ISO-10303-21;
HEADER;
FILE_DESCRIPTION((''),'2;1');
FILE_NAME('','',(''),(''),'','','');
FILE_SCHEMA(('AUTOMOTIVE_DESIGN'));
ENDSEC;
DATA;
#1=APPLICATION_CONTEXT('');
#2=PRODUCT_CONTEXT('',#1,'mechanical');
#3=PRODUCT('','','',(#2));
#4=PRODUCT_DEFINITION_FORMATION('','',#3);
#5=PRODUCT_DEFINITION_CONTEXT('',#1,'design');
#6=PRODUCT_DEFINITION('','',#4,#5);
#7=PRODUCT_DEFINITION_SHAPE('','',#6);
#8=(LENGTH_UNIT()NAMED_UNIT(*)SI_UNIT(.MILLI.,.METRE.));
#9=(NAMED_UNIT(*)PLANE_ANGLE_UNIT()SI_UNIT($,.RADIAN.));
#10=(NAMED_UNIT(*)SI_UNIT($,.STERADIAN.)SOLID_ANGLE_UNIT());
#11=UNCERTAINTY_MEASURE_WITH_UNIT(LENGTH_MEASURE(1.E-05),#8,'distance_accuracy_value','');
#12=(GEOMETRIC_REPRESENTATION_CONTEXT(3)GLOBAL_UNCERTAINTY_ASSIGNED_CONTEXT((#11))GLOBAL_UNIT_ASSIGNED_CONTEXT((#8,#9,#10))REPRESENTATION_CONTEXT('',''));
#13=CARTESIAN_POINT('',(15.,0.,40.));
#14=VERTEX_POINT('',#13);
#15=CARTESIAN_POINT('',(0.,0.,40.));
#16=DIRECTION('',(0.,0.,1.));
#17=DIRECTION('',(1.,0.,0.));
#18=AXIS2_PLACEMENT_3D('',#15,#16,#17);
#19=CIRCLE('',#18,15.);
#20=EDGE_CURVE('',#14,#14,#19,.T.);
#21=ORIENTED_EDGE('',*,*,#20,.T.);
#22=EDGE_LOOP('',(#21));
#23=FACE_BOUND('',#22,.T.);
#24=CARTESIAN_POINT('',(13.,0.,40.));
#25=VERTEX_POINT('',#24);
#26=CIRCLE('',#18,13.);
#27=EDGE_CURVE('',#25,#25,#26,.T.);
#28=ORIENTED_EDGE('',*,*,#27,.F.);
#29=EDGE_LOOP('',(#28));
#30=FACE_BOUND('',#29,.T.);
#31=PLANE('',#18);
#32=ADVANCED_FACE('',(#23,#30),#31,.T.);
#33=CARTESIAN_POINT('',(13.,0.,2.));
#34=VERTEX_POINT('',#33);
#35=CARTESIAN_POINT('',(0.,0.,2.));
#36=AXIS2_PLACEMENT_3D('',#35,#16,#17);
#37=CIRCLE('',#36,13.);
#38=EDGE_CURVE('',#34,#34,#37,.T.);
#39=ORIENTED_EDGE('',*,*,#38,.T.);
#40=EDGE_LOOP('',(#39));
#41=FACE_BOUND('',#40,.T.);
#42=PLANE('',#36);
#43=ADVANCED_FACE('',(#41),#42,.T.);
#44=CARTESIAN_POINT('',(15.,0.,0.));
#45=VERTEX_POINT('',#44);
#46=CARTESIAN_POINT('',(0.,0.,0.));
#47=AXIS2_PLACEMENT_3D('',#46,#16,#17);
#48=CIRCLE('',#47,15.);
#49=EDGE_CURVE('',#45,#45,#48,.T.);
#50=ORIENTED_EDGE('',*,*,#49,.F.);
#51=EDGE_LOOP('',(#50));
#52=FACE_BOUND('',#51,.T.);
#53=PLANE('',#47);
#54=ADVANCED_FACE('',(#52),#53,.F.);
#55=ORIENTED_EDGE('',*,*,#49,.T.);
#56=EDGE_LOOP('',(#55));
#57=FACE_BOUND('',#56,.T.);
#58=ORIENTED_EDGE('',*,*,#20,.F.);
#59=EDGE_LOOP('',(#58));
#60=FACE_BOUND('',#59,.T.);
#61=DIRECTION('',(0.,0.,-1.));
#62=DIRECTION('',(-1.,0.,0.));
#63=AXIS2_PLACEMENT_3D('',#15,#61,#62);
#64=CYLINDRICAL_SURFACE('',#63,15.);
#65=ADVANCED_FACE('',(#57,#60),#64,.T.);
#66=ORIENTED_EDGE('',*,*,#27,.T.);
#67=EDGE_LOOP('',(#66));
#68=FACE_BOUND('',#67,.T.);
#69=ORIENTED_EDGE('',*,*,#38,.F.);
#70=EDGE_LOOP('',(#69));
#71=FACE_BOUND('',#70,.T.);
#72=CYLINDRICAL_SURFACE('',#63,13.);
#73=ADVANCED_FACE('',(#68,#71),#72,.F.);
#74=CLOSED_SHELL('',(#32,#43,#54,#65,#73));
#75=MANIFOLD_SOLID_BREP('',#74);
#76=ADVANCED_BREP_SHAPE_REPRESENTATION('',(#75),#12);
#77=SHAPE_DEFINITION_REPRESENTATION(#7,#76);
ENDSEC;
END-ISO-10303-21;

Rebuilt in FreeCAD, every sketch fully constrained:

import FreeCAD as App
import Part
import Sketcher
from FreeCAD import Vector
Q = App.Units.Quantity


def faces_at(feature, points):
    """Names of the faces that lie closest to the given points."""
    faces = feature.Shape.Faces
    near = lambda p: min(range(len(faces)), key=lambda i: faces[i].distToShape(Part.Vertex(*p))[0])
    return sorted({f"Face{near(p) + 1}" for p in points})

doc = App.newDocument("Part")
params = doc.addObject("Spreadsheet::Sheet", "Params")
for row, (alias, value) in enumerate([
    ("sketch1_diameter", "30 mm"),
    ("pad1_length", "40 mm"),
    ("thickness_wall", "2 mm"),
], start=1):
    params.set(f"A{row}", alias)
    params.set(f"B{row}", "=" + value)
    params.setAlias(f"B{row}", alias)

body = doc.addObject("PartDesign::Body", "Body")

# Sketch on XY plane
sketch1 = body.newObject("Sketcher::SketchObject", "Sketch")
sketch1.AttachmentSupport = (doc.getObject("XY_Plane"), [""])
sketch1.MapMode = "FlatFace"
sketch1.addGeometry(Part.Circle(Vector(0, 0, 0), Vector(0, 0, 1), 15), False)
sketch1.addConstraint([
    Sketcher.Constraint("Coincident", 0, 3, -1, 1),
    Sketcher.Constraint("Diameter", 0, Q("30 mm")),
])
sketch1.setExpression("Constraints[1]", "Params.sketch1_diameter")
pad1 = body.newObject("PartDesign::Pad", "Pad")
pad1.Profile = sketch1
pad1.setExpression("Length", "Params.pad1_length")
doc.recompute()

thickness = body.newObject("PartDesign::Thickness", "Thickness")
thickness.Base = (pad1, faces_at(pad1, [(0, 0, 40)]))
thickness.setExpression("Value", "Params.thickness_wall")
thickness.Reversed = True
thickness.Join = "Intersection"

doc.recompute()
